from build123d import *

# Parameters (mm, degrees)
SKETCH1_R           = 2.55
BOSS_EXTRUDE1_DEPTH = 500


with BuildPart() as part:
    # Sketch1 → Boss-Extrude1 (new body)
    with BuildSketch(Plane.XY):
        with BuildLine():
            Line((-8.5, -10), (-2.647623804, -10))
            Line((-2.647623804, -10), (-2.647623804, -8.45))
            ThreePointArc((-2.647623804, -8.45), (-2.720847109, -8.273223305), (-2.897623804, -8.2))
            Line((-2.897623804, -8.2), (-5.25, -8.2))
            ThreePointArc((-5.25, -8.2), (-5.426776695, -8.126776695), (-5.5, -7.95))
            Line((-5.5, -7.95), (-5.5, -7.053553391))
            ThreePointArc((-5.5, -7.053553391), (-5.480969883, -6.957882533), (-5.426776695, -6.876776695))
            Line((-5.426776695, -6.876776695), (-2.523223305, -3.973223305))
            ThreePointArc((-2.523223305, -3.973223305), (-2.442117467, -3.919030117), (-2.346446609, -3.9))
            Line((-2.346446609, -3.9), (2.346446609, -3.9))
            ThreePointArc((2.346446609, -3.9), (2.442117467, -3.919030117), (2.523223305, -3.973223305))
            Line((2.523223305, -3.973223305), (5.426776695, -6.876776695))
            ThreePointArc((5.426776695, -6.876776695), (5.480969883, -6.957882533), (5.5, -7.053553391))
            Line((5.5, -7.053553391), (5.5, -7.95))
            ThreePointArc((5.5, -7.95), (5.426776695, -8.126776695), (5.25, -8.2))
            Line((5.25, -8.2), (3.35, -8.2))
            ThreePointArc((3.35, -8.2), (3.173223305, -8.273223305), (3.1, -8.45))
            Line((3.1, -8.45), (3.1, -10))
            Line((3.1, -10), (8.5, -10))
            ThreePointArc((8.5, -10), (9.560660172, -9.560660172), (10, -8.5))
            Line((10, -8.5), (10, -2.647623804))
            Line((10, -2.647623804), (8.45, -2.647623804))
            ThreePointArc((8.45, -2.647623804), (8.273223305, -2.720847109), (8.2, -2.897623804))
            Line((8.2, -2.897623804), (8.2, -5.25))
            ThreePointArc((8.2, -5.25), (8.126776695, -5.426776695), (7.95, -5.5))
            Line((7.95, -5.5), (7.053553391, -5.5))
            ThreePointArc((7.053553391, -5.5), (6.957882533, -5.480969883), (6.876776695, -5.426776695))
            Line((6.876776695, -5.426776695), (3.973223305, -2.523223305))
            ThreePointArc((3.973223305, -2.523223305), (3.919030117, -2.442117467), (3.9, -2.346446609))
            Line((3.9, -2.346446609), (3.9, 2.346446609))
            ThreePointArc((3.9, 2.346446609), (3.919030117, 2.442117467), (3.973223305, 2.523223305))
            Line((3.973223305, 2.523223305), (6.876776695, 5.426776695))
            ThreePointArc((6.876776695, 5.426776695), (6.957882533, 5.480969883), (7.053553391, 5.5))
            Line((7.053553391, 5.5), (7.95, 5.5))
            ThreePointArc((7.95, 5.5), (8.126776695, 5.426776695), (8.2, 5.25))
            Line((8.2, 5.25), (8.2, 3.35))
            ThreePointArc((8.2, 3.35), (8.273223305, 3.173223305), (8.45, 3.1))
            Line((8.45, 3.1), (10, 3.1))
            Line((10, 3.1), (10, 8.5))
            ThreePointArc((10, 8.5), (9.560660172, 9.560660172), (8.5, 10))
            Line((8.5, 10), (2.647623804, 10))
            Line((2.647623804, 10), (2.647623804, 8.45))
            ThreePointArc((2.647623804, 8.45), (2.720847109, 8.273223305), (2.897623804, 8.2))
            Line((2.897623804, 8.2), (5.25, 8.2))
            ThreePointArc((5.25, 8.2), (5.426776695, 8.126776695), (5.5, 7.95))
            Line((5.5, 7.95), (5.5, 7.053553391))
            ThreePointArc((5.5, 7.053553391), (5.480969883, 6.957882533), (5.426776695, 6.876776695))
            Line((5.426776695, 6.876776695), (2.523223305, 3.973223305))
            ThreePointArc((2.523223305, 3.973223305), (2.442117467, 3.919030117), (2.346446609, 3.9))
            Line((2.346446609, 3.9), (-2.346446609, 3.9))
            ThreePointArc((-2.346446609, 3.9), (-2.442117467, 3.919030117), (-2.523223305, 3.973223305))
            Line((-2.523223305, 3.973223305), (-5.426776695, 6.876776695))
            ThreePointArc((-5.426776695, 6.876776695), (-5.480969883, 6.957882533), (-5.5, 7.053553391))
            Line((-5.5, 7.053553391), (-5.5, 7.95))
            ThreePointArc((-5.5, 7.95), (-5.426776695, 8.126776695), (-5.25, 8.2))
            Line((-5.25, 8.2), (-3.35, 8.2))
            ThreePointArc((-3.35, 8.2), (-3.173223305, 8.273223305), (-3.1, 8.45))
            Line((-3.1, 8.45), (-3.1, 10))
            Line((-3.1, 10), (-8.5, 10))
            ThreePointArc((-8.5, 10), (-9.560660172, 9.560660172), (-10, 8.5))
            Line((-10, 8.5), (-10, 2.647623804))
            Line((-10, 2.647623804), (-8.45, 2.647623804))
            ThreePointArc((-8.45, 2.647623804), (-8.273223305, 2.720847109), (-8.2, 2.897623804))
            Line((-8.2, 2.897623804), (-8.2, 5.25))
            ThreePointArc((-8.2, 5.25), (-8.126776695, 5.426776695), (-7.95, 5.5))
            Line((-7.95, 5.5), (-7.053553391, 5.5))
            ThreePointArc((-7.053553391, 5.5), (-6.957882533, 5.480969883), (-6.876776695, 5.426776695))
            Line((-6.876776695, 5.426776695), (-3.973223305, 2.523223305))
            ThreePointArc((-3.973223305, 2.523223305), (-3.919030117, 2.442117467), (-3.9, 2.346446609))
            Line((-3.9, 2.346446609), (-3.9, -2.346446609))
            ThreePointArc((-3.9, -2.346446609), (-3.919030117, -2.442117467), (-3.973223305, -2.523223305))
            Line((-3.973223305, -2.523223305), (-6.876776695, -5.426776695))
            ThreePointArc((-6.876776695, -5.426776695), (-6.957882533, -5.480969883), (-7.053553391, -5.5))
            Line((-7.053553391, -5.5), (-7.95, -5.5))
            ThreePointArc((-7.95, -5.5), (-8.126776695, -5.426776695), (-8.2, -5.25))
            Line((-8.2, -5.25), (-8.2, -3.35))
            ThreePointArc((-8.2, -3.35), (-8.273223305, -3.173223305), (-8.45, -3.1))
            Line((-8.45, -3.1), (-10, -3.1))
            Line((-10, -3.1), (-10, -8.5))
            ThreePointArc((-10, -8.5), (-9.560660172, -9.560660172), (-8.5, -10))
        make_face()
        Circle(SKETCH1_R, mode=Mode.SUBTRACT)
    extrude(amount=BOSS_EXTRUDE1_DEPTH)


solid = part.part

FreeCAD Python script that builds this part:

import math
import FreeCAD as App
import Part
import Sketcher

doc = App.newDocument("Part")
body = doc.addObject("PartDesign::Body", "Body")

sketch1 = doc.addObject("Sketcher::SketchObject", "Sketch")
body.addObject(sketch1)
sketch1.AttachmentSupport = (doc.XY_Plane, [""])
sketch1.MapMode = "FlatFace"
sketch1.addGeometry([
    Part.LineSegment(App.Vector(-8.5, -10, 0), App.Vector(-2.647624, -10, 0)),
    Part.LineSegment(App.Vector(-2.647624, -10, 0), App.Vector(-2.647624, -8.45, 0)),
    Part.ArcOfCircle(Part.Circle(App.Vector(-2.897624, -8.45, 0), App.Vector(0, 0, 1), 0.25), math.radians(0), math.radians(90)),
    Part.LineSegment(App.Vector(-2.897624, -8.2, 0), App.Vector(-5.25, -8.2, 0)),
    Part.ArcOfCircle(Part.Circle(App.Vector(-5.25, -7.95, 0), App.Vector(0, 0, 1), 0.25), math.radians(-180), math.radians(-90)),
    Part.LineSegment(App.Vector(-5.5, -7.95, 0), App.Vector(-5.5, -7.053553, 0)),
    Part.ArcOfCircle(Part.Circle(App.Vector(-5.25, -7.053553, 0), App.Vector(0, 0, 1), 0.25), math.radians(135), math.radians(180)),
    Part.LineSegment(App.Vector(-5.426777, -6.876777, 0), App.Vector(-2.523223, -3.973223, 0)),
    Part.ArcOfCircle(Part.Circle(App.Vector(-2.346447, -4.15, 0), App.Vector(0, 0, 1), 0.25), math.radians(90), math.radians(135)),
    Part.LineSegment(App.Vector(-2.346447, -3.9, 0), App.Vector(2.346447, -3.9, 0)),
    Part.ArcOfCircle(Part.Circle(App.Vector(2.346447, -4.15, 0), App.Vector(0, 0, 1), 0.25), math.radians(45), math.radians(90)),
    Part.LineSegment(App.Vector(2.523223, -3.973223, 0), App.Vector(5.426777, -6.876777, 0)),
    Part.ArcOfCircle(Part.Circle(App.Vector(5.25, -7.053553, 0), App.Vector(0, 0, 1), 0.25), math.radians(0), math.radians(45)),
    Part.LineSegment(App.Vector(5.5, -7.053553, 0), App.Vector(5.5, -7.95, 0)),
    Part.ArcOfCircle(Part.Circle(App.Vector(5.25, -7.95, 0), App.Vector(0, 0, 1), 0.25), math.radians(-90), math.radians(0)),
    Part.LineSegment(App.Vector(5.25, -8.2, 0), App.Vector(3.35, -8.2, 0)),
    Part.ArcOfCircle(Part.Circle(App.Vector(3.35, -8.45, 0), App.Vector(0, 0, 1), 0.25), math.radians(90), math.radians(180)),
    Part.LineSegment(App.Vector(3.1, -8.45, 0), App.Vector(3.1, -10, 0)),
    Part.LineSegment(App.Vector(3.1, -10, 0), App.Vector(8.5, -10, 0)),
    Part.ArcOfCircle(Part.Circle(App.Vector(8.5, -8.5, 0), App.Vector(0, 0, 1), 1.5), math.radians(-90), math.radians(0)),
    Part.LineSegment(App.Vector(10, -8.5, 0), App.Vector(10, -2.647624, 0)),
    Part.LineSegment(App.Vector(10, -2.647624, 0), App.Vector(8.45, -2.647624, 0)),
    Part.ArcOfCircle(Part.Circle(App.Vector(8.45, -2.897624, 0), App.Vector(0, 0, 1), 0.25), math.radians(90), math.radians(180)),
    Part.LineSegment(App.Vector(8.2, -2.897624, 0), App.Vector(8.2, -5.25, 0)),
    Part.ArcOfCircle(Part.Circle(App.Vector(7.95, -5.25, 0), App.Vector(0, 0, 1), 0.25), math.radians(-90), math.radians(0)),
    Part.LineSegment(App.Vector(7.95, -5.5, 0), App.Vector(7.053553, -5.5, 0)),
    Part.ArcOfCircle(Part.Circle(App.Vector(7.053553, -5.25, 0), App.Vector(0, 0, 1), 0.25), math.radians(-135), math.radians(-90)),
    Part.LineSegment(App.Vector(6.876777, -5.426777, 0), App.Vector(3.973223, -2.523223, 0)),
    Part.ArcOfCircle(Part.Circle(App.Vector(4.15, -2.346447, 0), App.Vector(0, 0, 1), 0.25), math.radians(-180), math.radians(-135)),
    Part.LineSegment(App.Vector(3.9, -2.346447, 0), App.Vector(3.9, 2.346447, 0)),
    Part.ArcOfCircle(Part.Circle(App.Vector(4.15, 2.346447, 0), App.Vector(0, 0, 1), 0.25), math.radians(135), math.radians(180)),
    Part.LineSegment(App.Vector(3.973223, 2.523223, 0), App.Vector(6.876777, 5.426777, 0)),
    Part.ArcOfCircle(Part.Circle(App.Vector(7.053553, 5.25, 0), App.Vector(0, 0, 1), 0.25), math.radians(90), math.radians(135)),
    Part.LineSegment(App.Vector(7.053553, 5.5, 0), App.Vector(7.95, 5.5, 0)),
    Part.ArcOfCircle(Part.Circle(App.Vector(7.95, 5.25, 0), App.Vector(0, 0, 1), 0.25), math.radians(0), math.radians(90)),
    Part.LineSegment(App.Vector(8.2, 5.25, 0), App.Vector(8.2, 3.35, 0)),
    Part.ArcOfCircle(Part.Circle(App.Vector(8.45, 3.35, 0), App.Vector(0, 0, 1), 0.25), math.radians(-180), math.radians(-90)),
    Part.LineSegment(App.Vector(8.45, 3.1, 0), App.Vector(10, 3.1, 0)),
    Part.LineSegment(App.Vector(10, 3.1, 0), App.Vector(10, 8.5, 0)),
    Part.ArcOfCircle(Part.Circle(App.Vector(8.5, 8.5, 0), App.Vector(0, 0, 1), 1.5), math.radians(0), math.radians(90)),
    Part.LineSegment(App.Vector(8.5, 10, 0), App.Vector(2.647624, 10, 0)),
    Part.LineSegment(App.Vector(2.647624, 10, 0), App.Vector(2.647624, 8.45, 0)),
    Part.ArcOfCircle(Part.Circle(App.Vector(2.897624, 8.45, 0), App.Vector(0, 0, 1), 0.25), math.radians(-180), math.radians(-90)),
    Part.LineSegment(App.Vector(2.897624, 8.2, 0), App.Vector(5.25, 8.2, 0)),
    Part.ArcOfCircle(Part.Circle(App.Vector(5.25, 7.95, 0), App.Vector(0, 0, 1), 0.25), math.radians(0), math.radians(90)),
    Part.LineSegment(App.Vector(5.5, 7.95, 0), App.Vector(5.5, 7.053553, 0)),
    Part.ArcOfCircle(Part.Circle(App.Vector(5.25, 7.053553, 0), App.Vector(0, 0, 1), 0.25), math.radians(-45), math.radians(0)),
    Part.LineSegment(App.Vector(5.426777, 6.876777, 0), App.Vector(2.523223, 3.973223, 0)),
    Part.ArcOfCircle(Part.Circle(App.Vector(2.346447, 4.15, 0), App.Vector(0, 0, 1), 0.25), math.radians(-90), math.radians(-45)),
    Part.LineSegment(App.Vector(2.346447, 3.9, 0), App.Vector(-2.346447, 3.9, 0)),
    Part.ArcOfCircle(Part.Circle(App.Vector(-2.346447, 4.15, 0), App.Vector(0, 0, 1), 0.25), math.radians(-135), math.radians(-90)),
    Part.LineSegment(App.Vector(-2.523223, 3.973223, 0), App.Vector(-5.426777, 6.876777, 0)),
    Part.ArcOfCircle(Part.Circle(App.Vector(-5.25, 7.053553, 0), App.Vector(0, 0, 1), 0.25), math.radians(-180), math.radians(-135)),
    Part.LineSegment(App.Vector(-5.5, 7.053553, 0), App.Vector(-5.5, 7.95, 0)),
    Part.ArcOfCircle(Part.Circle(App.Vector(-5.25, 7.95, 0), App.Vector(0, 0, 1), 0.25), math.radians(90), math.radians(180)),
    Part.LineSegment(App.Vector(-5.25, 8.2, 0), App.Vector(-3.35, 8.2, 0)),
    Part.ArcOfCircle(Part.Circle(App.Vector(-3.35, 8.45, 0), App.Vector(0, 0, 1), 0.25), math.radians(-90), math.radians(0)),
    Part.LineSegment(App.Vector(-3.1, 8.45, 0), App.Vector(-3.1, 10, 0)),
    Part.LineSegment(App.Vector(-3.1, 10, 0), App.Vector(-8.5, 10, 0)),
    Part.ArcOfCircle(Part.Circle(App.Vector(-8.5, 8.5, 0), App.Vector(0, 0, 1), 1.5), math.radians(90), math.radians(180)),
    Part.LineSegment(App.Vector(-10, 8.5, 0), App.Vector(-10, 2.647624, 0)),
    Part.LineSegment(App.Vector(-10, 2.647624, 0), App.Vector(-8.45, 2.647624, 0)),
    Part.ArcOfCircle(Part.Circle(App.Vector(-8.45, 2.897624, 0), App.Vector(0, 0, 1), 0.25), math.radians(-90), math.radians(0)),
    Part.LineSegment(App.Vector(-8.2, 2.897624, 0), App.Vector(-8.2, 5.25, 0)),
    Part.ArcOfCircle(Part.Circle(App.Vector(-7.95, 5.25, 0), App.Vector(0, 0, 1), 0.25), math.radians(90), math.radians(180)),
    Part.LineSegment(App.Vector(-7.95, 5.5, 0), App.Vector(-7.053553, 5.5, 0)),
    Part.ArcOfCircle(Part.Circle(App.Vector(-7.053553, 5.25, 0), App.Vector(0, 0, 1), 0.25), math.radians(45), math.radians(90)),
    Part.LineSegment(App.Vector(-6.876777, 5.426777, 0), App.Vector(-3.973223, 2.523223, 0)),
    Part.ArcOfCircle(Part.Circle(App.Vector(-4.15, 2.346447, 0), App.Vector(0, 0, 1), 0.25), math.radians(0), math.radians(45)),
    Part.LineSegment(App.Vector(-3.9, 2.346447, 0), App.Vector(-3.9, -2.346447, 0)),
    Part.ArcOfCircle(Part.Circle(App.Vector(-4.15, -2.346447, 0), App.Vector(0, 0, 1), 0.25), math.radians(-45), math.radians(0)),
    Part.LineSegment(App.Vector(-3.973223, -2.523223, 0), App.Vector(-6.876777, -5.426777, 0)),
    Part.ArcOfCircle(Part.Circle(App.Vector(-7.053553, -5.25, 0), App.Vector(0, 0, 1), 0.25), math.radians(-90), math.radians(-45)),
    Part.LineSegment(App.Vector(-7.053553, -5.5, 0), App.Vector(-7.95, -5.5, 0)),
    Part.ArcOfCircle(Part.Circle(App.Vector(-7.95, -5.25, 0), App.Vector(0, 0, 1), 0.25), math.radians(-180), math.radians(-90)),
    Part.LineSegment(App.Vector(-8.2, -5.25, 0), App.Vector(-8.2, -3.35, 0)),
    Part.ArcOfCircle(Part.Circle(App.Vector(-8.45, -3.35, 0), App.Vector(0, 0, 1), 0.25), math.radians(0), math.radians(90)),
    Part.LineSegment(App.Vector(-8.45, -3.1, 0), App.Vector(-10, -3.1, 0)),
    Part.LineSegment(App.Vector(-10, -3.1, 0), App.Vector(-10, -8.5, 0)),
    Part.ArcOfCircle(Part.Circle(App.Vector(-8.5, -8.5, 0), App.Vector(0, 0, 1), 1.5), math.radians(180), math.radians(270)),
    Part.Circle(App.Vector(0, 0, 0), App.Vector(0, 0, 1), 2.55),
], False)
sketch1.addConstraint([
    Sketcher.Constraint("Coincident", 0, 2, 1, 1),
    Sketcher.Constraint("Tangent", 1, 2, 2, 1),
    Sketcher.Constraint("Tangent", 2, 2, 3, 1),
    Sketcher.Constraint("Tangent", 3, 2, 4, 2),
    Sketcher.Constraint("Tangent", 4, 1, 5, 1),
    Sketcher.Constraint("Tangent", 5, 2, 6, 2),
    Sketcher.Constraint("Tangent", 6, 1, 7, 1),
    Sketcher.Constraint("Tangent", 7, 2, 8, 2),
    Sketcher.Constraint("Tangent", 8, 1, 9, 1),
    Sketcher.Constraint("Tangent", 9, 2, 10, 2),
    Sketcher.Constraint("Tangent", 10, 1, 11, 1),
    Sketcher.Constraint("Tangent", 11, 2, 12, 2),
    Sketcher.Constraint("Tangent", 12, 1, 13, 1),
    Sketcher.Constraint("Tangent", 13, 2, 14, 2),
    Sketcher.Constraint("Tangent", 14, 1, 15, 1),
    Sketcher.Constraint("Tangent", 15, 2, 16, 1),
    Sketcher.Constraint("Tangent", 16, 2, 17, 1),
    Sketcher.Constraint("Coincident", 17, 2, 18, 1),
    Sketcher.Constraint("Tangent", 18, 2, 19, 1),
    Sketcher.Constraint("Tangent", 19, 2, 20, 1),
    Sketcher.Constraint("Coincident", 20, 2, 21, 1),
    Sketcher.Constraint("Tangent", 21, 2, 22, 1),
    Sketcher.Constraint("Tangent", 22, 2, 23, 1),
    Sketcher.Constraint("Tangent", 23, 2, 24, 2),
    Sketcher.Constraint("Tangent", 24, 1, 25, 1),
    Sketcher.Constraint("Tangent", 25, 2, 26, 2),
    Sketcher.Constraint("Tangent", 26, 1, 27, 1),
    Sketcher.Constraint("Tangent", 27, 2, 28, 2),
    Sketcher.Constraint("Tangent", 28, 1, 29, 1),
    Sketcher.Constraint("Tangent", 29, 2, 30, 2),
    Sketcher.Constraint("Tangent", 30, 1, 31, 1),
    Sketcher.Constraint("Tangent", 31, 2, 32, 2),
    Sketcher.Constraint("Tangent", 32, 1, 33, 1),
    Sketcher.Constraint("Tangent", 33, 2, 34, 2),
    Sketcher.Constraint("Tangent", 34, 1, 35, 1),
    Sketcher.Constraint("Tangent", 35, 2, 36, 1),
    Sketcher.Constraint("Tangent", 36, 2, 37, 1),
    Sketcher.Constraint("Coincident", 37, 2, 38, 1),
    Sketcher.Constraint("Tangent", 38, 2, 39, 1),
    Sketcher.Constraint("Tangent", 39, 2, 40, 1),
    Sketcher.Constraint("Coincident", 40, 2, 41, 1),
    Sketcher.Constraint("Tangent", 41, 2, 42, 1),
    Sketcher.Constraint("Tangent", 42, 2, 43, 1),
    Sketcher.Constraint("Tangent", 43, 2, 44, 2),
    Sketcher.Constraint("Tangent", 44, 1, 45, 1),
    Sketcher.Constraint("Tangent", 45, 2, 46, 2),
    Sketcher.Constraint("Tangent", 46, 1, 47, 1),
    Sketcher.Constraint("Tangent", 47, 2, 48, 2),
    Sketcher.Constraint("Tangent", 48, 1, 49, 1),
    Sketcher.Constraint("Tangent", 49, 2, 50, 2),
    Sketcher.Constraint("Tangent", 50, 1, 51, 1),
    Sketcher.Constraint("Tangent", 51, 2, 52, 2),
    Sketcher.Constraint("Tangent", 52, 1, 53, 1),
    Sketcher.Constraint("Tangent", 53, 2, 54, 2),
    Sketcher.Constraint("Tangent", 54, 1, 55, 1),
    Sketcher.Constraint("Tangent", 55, 2, 56, 1),
    Sketcher.Constraint("Tangent", 56, 2, 57, 1),
    Sketcher.Constraint("Coincident", 57, 2, 58, 1),
    Sketcher.Constraint("Tangent", 58, 2, 59, 1),
    Sketcher.Constraint("Tangent", 59, 2, 60, 1),
    Sketcher.Constraint("Coincident", 60, 2, 61, 1),
    Sketcher.Constraint("Tangent", 61, 2, 62, 1),
    Sketcher.Constraint("Tangent", 62, 2, 63, 1),
    Sketcher.Constraint("Tangent", 63, 2, 64, 2),
    Sketcher.Constraint("Tangent", 64, 1, 65, 1),
    Sketcher.Constraint("Tangent", 65, 2, 66, 2),
    Sketcher.Constraint("Tangent", 66, 1, 67, 1),
    Sketcher.Constraint("Tangent", 67, 2, 68, 2),
    Sketcher.Constraint("Tangent", 68, 1, 69, 1),
    Sketcher.Constraint("Tangent", 69, 2, 70, 2),
    Sketcher.Constraint("Tangent", 70, 1, 71, 1),
    Sketcher.Constraint("Tangent", 71, 2, 72, 2),
    Sketcher.Constraint("Tangent", 72, 1, 73, 1),
    Sketcher.Constraint("Tangent", 73, 2, 74, 2),
    Sketcher.Constraint("Tangent", 74, 1, 75, 1),
    Sketcher.Constraint("Tangent", 75, 2, 76, 1),
    Sketcher.Constraint("Tangent", 76, 2, 77, 1),
    Sketcher.Constraint("Coincident", 77, 2, 78, 1),
    Sketcher.Constraint("Tangent", 78, 2, 79, 1),
    Sketcher.Constraint("Tangent", 79, 2, 0, 1),
    Sketcher.Constraint("Horizontal", 0),
    Sketcher.Constraint("Vertical", 1),
    Sketcher.Constraint("Horizontal", 3),
    Sketcher.Constraint("Vertical", 5),
    Sketcher.Constraint("Horizontal", 9),
    Sketcher.Constraint("Vertical", 13),
    Sketcher.Constraint("Horizontal", 15),
    Sketcher.Constraint("Vertical", 17),
    Sketcher.Constraint("Horizontal", 18),
    Sketcher.Constraint("Vertical", 20),
    Sketcher.Constraint("Horizontal", 21),
    Sketcher.Constraint("Vertical", 23),
    Sketcher.Constraint("Horizontal", 25),
    Sketcher.Constraint("Vertical", 29),
    Sketcher.Constraint("Horizontal", 33),
    Sketcher.Constraint("Vertical", 35),
    Sketcher.Constraint("Horizontal", 37),
    Sketcher.Constraint("Vertical", 38),
    Sketcher.Constraint("Horizontal", 40),
    Sketcher.Constraint("Vertical", 41),
    Sketcher.Constraint("Horizontal", 43),
    Sketcher.Constraint("Vertical", 45),
    Sketcher.Constraint("Horizontal", 49),
    Sketcher.Constraint("Vertical", 53),
    Sketcher.Constraint("Horizontal", 55),
    Sketcher.Constraint("Vertical", 57),
    Sketcher.Constraint("Horizontal", 58),
    Sketcher.Constraint("Vertical", 60),
    Sketcher.Constraint("Horizontal", 61),
    Sketcher.Constraint("Vertical", 63),
    Sketcher.Constraint("Horizontal", 65),
    Sketcher.Constraint("Vertical", 69),
    Sketcher.Constraint("Horizontal", 73),
    Sketcher.Constraint("Vertical", 75),
    Sketcher.Constraint("Horizontal", 77),
    Sketcher.Constraint("Vertical", 78),
    Sketcher.Constraint("Coincident", 80, 3, -1, 1),
    Sketcher.Constraint("Equal", 2, 4),
    Sketcher.Constraint("Equal", 4, 6),
    Sketcher.Constraint("Equal", 6, 8),
    Sketcher.Constraint("Equal", 8, 10),
    Sketcher.Constraint("Equal", 10, 12),
    Sketcher.Constraint("Equal", 12, 14),
    Sketcher.Constraint("Equal", 14, 16),
    Sketcher.Constraint("Equal", 16, 22),
    Sketcher.Constraint("Equal", 22, 24),
    Sketcher.Constraint("Equal", 24, 26),
    Sketcher.Constraint("Equal", 26, 28),
    Sketcher.Constraint("Equal", 28, 30),
    Sketcher.Constraint("Equal", 30, 32),
    Sketcher.Constraint("Equal", 32, 34),
    Sketcher.Constraint("Equal", 34, 36),
    Sketcher.Constraint("Equal", 19, 39),
    Sketcher.Constraint("Equal", 36, 42),
    Sketcher.Constraint("Equal", 42, 44),
    Sketcher.Constraint("Equal", 44, 46),
    Sketcher.Constraint("Equal", 46, 48),
    Sketcher.Constraint("Equal", 48, 50),
    Sketcher.Constraint("Equal", 50, 52),
    Sketcher.Constraint("Equal", 52, 54),
    Sketcher.Constraint("Equal", 54, 56),
    Sketcher.Constraint("Equal", 39, 59),
    Sketcher.Constraint("Equal", 56, 62),
    Sketcher.Constraint("Equal", 62, 64),
    Sketcher.Constraint("Equal", 64, 66),
    Sketcher.Constraint("Equal", 66, 68),
    Sketcher.Constraint("Equal", 68, 70),
    Sketcher.Constraint("Equal", 70, 72),
    Sketcher.Constraint("Equal", 72, 74),
    Sketcher.Constraint("Equal", 74, 76),
    Sketcher.Constraint("Equal", 59, 79),
    Sketcher.Constraint("Symmetric", 2, 3, 42, 3, -1, 1),
    Sketcher.Constraint("Symmetric", 6, 3, 46, 3, -1, 1),
    Sketcher.Constraint("Symmetric", 8, 3, 48, 3, -1, 1),
    Sketcher.Constraint("Symmetric", 12, 3, 52, 3, -1, 1),
    Sketcher.Constraint("Symmetric", 16, 3, 56, 3, -1, 1),
    Sketcher.Constraint("Symmetric", 19, 3, 59, 3, -1, 1),
    Sketcher.Constraint("Symmetric", 22, 3, 62, 3, -1, 1),
    Sketcher.Constraint("Symmetric", 26, 3, 66, 3, -1, 1),
    Sketcher.Constraint("Symmetric", 28, 3, 68, 3, -1, 1),
    Sketcher.Constraint("Symmetric", 32, 3, 72, 3, -1, 1),
    Sketcher.Constraint("Symmetric", 36, 3, 76, 3, -1, 1),
    Sketcher.Constraint("Symmetric", 39, 3, 79, 3, -1, 1),
    Sketcher.Constraint("Symmetric", 6, 3, 12, 3, -2),
    Sketcher.Constraint("Symmetric", 39, 3, 59, 3, -2),
    Sketcher.Constraint("Symmetric", 34, 3, 64, 3, -2),
    Sketcher.Constraint("Symmetric", 31, 2, 66, 1, -2),
    Sketcher.Constraint("Perpendicular", 7, 11),
    Sketcher.Constraint("Parallel", 11, 27),
    Sketcher.Constraint("Perpendicular", 27, 31),
    Sketcher.Constraint("Perpendicular", 47, 51),
    Sketcher.Constraint("Perpendicular", 67, 71),
    Sketcher.Constraint("Horizontal", 4, 3, 14, 3),
    Sketcher.Constraint("Equal", 77, 1),
    Sketcher.Constraint("Equal", 73, 5),
    Sketcher.Constraint("Equal", 40, 20),
    Sketcher.Constraint("Equal", 43, 23),
    Sketcher.Constraint("Equal", 49, 29),
    Sketcher.Constraint("Equal", 55, 35),
    Sketcher.Constraint("Equal", 11, 27),
    Sketcher.Constraint("Diameter", 80, 5.1),
    Sketcher.Constraint("Radius", 19, 1.5),
    Sketcher.Constraint("Radius", 2, 0.25),
    Sketcher.Constraint("DistanceX", 15, 2, 15, 1, 1.9),
    Sketcher.Constraint("DistanceX", 18, 1, 18, 2, 5.4),
    Sketcher.Constraint("DistanceY", 0, 2, -1, 1, 10.0),
    Sketcher.Constraint("DistanceX", 21, 2, 21, 1, 1.55),
    Sketcher.Constraint("DistanceY", 8, 1, -1, 1, 3.9),
    Sketcher.Constraint("DistanceX", 0, 1, 0, 2, 5.852376),
    Sketcher.Constraint("DistanceX", 9, 1, 9, 2, 4.692893),
])
pad1 = doc.addObject("PartDesign::Pad", "Pad")
body.addObject(pad1)
pad1.Profile = sketch1
pad1.Length = 500

doc.recompute()
